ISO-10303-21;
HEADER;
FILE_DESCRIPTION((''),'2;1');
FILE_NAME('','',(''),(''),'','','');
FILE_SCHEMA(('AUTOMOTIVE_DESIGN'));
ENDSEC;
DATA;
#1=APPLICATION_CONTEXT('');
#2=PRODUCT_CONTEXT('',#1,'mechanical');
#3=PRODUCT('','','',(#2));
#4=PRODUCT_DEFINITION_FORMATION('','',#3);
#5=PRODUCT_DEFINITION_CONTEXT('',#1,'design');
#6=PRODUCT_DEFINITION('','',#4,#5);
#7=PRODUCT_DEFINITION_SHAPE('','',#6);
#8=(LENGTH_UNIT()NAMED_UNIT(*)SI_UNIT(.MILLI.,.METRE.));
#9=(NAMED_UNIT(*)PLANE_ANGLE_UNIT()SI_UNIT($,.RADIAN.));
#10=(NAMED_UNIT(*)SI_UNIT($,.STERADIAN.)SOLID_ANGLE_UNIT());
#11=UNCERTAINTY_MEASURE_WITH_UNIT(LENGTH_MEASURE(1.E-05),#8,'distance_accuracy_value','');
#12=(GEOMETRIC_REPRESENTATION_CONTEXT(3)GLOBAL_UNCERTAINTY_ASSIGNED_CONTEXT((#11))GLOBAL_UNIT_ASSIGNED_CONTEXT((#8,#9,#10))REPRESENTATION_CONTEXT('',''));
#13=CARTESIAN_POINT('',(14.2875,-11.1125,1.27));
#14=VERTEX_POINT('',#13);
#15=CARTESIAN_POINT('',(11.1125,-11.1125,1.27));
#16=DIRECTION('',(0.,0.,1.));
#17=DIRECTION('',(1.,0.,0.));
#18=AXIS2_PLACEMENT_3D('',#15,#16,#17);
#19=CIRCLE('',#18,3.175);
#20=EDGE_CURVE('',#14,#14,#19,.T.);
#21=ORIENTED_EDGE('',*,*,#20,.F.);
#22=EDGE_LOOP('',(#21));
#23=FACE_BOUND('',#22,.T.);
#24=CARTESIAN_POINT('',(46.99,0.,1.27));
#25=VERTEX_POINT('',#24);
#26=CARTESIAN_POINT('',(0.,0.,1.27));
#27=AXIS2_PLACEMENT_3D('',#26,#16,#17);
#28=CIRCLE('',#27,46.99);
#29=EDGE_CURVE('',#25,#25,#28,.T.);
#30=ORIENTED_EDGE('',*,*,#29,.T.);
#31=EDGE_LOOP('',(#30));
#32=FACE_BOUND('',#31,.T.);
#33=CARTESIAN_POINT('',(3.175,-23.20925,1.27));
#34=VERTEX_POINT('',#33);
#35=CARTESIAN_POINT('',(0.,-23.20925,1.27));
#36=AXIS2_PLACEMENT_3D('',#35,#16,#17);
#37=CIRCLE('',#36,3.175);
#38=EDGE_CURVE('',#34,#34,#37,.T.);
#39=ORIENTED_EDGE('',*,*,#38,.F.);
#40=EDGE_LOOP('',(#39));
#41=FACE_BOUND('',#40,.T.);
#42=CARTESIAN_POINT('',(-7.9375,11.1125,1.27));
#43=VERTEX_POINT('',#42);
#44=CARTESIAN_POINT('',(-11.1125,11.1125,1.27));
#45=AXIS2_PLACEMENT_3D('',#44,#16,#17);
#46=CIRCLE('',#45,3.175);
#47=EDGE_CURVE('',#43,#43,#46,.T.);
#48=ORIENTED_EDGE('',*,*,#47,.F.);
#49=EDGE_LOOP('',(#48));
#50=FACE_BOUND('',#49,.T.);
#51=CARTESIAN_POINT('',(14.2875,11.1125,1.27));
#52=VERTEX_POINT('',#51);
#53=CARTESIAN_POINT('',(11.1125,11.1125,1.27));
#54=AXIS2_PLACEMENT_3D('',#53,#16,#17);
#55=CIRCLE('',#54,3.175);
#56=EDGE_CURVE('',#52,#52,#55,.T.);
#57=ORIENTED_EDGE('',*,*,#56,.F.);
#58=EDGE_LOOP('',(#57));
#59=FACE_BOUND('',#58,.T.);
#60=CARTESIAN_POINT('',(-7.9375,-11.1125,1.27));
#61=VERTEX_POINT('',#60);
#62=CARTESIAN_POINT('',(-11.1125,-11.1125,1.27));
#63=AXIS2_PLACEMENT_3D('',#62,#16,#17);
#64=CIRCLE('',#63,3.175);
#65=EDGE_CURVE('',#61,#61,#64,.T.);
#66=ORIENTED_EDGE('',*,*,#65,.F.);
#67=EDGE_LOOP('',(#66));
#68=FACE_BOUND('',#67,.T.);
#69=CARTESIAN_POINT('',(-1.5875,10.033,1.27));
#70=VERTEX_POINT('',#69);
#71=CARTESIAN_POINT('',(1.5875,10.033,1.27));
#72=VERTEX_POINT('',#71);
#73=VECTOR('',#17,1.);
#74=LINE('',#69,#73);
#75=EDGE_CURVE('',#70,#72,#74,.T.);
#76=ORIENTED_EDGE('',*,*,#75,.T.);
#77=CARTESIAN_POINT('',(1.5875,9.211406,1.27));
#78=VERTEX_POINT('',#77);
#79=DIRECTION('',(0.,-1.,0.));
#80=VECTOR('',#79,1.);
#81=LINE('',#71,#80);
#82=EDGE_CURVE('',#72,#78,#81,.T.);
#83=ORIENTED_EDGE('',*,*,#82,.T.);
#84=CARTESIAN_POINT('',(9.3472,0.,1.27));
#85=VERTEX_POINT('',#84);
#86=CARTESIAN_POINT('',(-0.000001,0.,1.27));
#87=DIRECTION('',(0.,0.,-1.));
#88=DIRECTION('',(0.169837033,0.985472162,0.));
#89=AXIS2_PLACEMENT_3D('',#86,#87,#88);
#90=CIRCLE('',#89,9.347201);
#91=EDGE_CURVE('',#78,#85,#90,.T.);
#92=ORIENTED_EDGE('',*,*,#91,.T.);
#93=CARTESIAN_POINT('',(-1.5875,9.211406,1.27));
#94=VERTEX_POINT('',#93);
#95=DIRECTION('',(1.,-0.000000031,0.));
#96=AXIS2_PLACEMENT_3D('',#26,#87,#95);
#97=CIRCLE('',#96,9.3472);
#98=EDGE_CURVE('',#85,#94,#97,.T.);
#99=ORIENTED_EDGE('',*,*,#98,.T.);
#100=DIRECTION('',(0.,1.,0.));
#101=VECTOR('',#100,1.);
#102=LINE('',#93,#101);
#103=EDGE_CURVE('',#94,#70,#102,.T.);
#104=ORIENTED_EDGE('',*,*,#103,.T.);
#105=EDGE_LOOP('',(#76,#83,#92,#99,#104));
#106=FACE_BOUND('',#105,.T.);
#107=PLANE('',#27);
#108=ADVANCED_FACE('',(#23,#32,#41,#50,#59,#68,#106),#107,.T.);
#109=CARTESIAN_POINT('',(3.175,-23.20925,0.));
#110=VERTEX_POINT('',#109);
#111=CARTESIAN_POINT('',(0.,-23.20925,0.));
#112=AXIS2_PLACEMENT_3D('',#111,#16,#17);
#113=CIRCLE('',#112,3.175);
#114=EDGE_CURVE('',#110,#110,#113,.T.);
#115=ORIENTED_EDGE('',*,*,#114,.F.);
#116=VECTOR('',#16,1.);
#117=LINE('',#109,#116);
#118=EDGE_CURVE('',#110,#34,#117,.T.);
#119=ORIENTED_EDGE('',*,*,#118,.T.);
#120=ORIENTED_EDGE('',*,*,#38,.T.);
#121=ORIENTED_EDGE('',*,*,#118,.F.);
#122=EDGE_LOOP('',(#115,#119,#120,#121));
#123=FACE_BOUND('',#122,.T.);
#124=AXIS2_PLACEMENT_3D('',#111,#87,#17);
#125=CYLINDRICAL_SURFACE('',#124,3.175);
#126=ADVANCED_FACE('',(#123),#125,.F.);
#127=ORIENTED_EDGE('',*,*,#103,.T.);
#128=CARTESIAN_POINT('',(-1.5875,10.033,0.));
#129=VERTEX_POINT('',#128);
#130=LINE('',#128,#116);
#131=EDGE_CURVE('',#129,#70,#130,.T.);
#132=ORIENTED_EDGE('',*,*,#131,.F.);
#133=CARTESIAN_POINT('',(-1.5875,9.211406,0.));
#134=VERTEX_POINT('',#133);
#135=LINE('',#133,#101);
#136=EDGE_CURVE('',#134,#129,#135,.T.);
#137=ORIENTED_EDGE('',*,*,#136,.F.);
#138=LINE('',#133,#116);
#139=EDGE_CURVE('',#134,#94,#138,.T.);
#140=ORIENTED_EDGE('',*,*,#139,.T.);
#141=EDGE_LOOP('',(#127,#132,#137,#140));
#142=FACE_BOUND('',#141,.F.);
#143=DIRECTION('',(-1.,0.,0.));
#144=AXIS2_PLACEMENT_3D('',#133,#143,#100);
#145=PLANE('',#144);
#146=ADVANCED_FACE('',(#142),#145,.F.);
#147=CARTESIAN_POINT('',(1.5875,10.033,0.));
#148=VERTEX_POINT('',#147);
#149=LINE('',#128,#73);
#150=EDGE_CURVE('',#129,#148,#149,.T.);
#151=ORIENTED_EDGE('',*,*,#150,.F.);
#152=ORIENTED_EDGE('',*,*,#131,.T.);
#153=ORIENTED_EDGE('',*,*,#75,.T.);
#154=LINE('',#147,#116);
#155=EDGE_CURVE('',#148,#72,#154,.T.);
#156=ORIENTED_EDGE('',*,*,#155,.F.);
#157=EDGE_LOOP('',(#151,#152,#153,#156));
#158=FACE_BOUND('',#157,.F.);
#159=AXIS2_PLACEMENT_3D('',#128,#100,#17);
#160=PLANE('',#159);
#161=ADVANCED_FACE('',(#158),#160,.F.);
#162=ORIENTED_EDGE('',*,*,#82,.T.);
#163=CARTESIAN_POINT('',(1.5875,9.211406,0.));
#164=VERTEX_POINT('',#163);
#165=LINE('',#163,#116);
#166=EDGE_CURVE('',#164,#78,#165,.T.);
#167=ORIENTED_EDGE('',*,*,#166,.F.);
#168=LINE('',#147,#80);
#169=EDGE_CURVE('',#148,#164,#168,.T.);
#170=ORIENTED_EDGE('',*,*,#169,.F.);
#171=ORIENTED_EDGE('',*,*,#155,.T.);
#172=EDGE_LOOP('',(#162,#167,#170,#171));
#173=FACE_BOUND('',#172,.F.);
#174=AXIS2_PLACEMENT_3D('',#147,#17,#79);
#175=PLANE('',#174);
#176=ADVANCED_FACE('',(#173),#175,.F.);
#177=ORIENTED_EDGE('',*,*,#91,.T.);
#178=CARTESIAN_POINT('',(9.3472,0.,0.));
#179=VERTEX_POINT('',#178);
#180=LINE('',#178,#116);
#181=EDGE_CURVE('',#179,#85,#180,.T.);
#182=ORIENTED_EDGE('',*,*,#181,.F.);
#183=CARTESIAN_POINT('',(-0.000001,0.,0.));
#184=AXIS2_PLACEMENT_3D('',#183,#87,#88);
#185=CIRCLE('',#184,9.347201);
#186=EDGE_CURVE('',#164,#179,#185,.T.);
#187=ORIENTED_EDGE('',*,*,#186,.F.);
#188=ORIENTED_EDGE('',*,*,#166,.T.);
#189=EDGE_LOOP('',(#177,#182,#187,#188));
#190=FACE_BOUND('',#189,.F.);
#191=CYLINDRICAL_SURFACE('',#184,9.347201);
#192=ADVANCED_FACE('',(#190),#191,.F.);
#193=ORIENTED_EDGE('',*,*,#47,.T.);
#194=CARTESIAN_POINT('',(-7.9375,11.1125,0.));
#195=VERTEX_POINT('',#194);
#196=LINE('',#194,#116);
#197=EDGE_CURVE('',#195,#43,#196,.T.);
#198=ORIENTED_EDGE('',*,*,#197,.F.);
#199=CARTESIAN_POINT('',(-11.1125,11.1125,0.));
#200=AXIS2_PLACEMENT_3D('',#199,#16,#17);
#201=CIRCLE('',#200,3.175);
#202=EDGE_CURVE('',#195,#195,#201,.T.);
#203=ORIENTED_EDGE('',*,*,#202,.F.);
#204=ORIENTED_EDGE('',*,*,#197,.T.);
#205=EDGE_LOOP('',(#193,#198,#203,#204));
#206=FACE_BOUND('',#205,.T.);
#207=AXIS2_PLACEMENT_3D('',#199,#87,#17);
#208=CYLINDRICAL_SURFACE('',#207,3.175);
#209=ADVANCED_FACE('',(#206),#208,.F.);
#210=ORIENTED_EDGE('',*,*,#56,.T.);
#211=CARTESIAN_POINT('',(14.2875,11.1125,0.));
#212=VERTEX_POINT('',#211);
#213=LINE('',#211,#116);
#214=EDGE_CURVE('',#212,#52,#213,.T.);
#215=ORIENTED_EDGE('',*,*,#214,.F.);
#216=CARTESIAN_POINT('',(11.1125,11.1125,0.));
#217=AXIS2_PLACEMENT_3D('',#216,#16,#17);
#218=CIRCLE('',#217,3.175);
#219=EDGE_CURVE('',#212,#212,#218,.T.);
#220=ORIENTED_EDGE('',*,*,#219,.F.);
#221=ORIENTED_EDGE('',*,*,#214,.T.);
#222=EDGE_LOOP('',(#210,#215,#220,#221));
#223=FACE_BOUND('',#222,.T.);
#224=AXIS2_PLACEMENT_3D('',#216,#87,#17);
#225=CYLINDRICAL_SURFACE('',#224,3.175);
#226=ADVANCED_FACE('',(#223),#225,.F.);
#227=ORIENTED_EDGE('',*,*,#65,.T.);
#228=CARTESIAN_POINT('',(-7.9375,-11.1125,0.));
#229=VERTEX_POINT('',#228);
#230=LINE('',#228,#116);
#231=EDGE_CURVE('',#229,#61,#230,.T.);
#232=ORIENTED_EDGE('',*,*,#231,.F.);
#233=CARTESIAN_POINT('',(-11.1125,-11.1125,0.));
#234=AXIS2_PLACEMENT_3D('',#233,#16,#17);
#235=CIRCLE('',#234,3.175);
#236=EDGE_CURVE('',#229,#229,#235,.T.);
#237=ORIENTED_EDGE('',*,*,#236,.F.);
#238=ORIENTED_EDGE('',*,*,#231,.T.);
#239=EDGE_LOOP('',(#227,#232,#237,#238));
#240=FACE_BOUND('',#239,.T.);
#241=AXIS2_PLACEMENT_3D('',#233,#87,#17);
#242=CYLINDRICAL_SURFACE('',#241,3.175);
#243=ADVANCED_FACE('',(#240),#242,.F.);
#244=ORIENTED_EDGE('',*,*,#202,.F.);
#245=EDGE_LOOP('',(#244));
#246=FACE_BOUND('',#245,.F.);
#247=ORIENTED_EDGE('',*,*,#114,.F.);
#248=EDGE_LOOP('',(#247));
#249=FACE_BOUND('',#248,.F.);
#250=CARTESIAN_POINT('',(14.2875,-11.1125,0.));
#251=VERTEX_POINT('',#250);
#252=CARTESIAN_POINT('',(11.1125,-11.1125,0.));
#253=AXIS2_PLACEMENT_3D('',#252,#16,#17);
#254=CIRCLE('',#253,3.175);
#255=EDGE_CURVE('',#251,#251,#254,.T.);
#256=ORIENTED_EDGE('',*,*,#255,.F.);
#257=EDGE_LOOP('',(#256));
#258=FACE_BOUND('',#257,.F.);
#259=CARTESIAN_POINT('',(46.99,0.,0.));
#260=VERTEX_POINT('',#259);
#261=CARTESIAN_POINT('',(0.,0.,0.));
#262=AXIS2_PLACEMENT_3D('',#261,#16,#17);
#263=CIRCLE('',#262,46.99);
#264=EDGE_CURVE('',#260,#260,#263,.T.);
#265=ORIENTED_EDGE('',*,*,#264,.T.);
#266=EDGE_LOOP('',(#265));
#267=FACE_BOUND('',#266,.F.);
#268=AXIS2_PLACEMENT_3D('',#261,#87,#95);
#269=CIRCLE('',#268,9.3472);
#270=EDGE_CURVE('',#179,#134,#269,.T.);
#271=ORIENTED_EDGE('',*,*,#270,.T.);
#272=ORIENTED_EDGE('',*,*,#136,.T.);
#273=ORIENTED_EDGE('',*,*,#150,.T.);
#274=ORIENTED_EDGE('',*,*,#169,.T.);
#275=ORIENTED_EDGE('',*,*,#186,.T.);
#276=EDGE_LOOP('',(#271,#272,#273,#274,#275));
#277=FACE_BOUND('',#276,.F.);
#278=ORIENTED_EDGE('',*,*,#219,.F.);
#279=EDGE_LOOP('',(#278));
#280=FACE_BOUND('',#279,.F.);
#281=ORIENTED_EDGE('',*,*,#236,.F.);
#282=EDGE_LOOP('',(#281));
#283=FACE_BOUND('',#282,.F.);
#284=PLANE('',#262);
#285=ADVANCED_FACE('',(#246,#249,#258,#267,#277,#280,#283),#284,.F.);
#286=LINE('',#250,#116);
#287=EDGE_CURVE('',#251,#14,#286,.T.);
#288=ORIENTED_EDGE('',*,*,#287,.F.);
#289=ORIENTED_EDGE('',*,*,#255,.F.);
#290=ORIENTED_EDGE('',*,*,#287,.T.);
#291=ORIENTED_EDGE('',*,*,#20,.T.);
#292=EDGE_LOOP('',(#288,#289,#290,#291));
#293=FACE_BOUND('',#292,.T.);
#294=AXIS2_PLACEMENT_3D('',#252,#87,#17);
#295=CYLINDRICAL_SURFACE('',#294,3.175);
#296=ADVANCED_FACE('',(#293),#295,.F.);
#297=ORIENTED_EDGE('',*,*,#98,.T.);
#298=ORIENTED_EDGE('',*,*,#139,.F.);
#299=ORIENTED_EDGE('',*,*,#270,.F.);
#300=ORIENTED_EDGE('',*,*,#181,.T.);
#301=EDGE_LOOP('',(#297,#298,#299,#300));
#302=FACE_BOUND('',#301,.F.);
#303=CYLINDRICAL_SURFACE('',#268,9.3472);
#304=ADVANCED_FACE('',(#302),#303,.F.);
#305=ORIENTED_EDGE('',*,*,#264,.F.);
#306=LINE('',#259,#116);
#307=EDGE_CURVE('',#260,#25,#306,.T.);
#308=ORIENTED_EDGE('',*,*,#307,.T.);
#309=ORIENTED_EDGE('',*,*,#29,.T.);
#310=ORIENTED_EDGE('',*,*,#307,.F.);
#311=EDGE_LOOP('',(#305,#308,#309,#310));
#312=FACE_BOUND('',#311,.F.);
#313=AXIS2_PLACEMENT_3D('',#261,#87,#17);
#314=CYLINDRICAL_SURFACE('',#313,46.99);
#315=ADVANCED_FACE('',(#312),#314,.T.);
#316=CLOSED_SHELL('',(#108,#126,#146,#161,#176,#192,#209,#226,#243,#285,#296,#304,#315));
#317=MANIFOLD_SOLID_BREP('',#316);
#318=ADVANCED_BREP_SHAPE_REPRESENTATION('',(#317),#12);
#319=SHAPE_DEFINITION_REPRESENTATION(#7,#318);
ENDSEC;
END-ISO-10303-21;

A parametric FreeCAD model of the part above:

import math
import FreeCAD as App
import Part
import Sketcher

V = App.Vector
Q = App.Units.Quantity

doc = App.newDocument("Part")
body = doc.addObject("PartDesign::Body", "Body")

sketch1 = body.newObject("Sketcher::SketchObject", "Sketch")
sketch1.AttachmentSupport = (doc.getObject("XY_Plane"), [""])
sketch1.MapMode = "FlatFace"
sketch1.addGeometry(Part.Circle(V(0, 0, 0), V(0, 0, 1), 46.99), False)
sketch1.addGeometry(Part.Circle(V(-11.1125, -11.1125, 0), V(0, 0, 1), 3.175), False)
sketch1.addGeometry(Part.Circle(V(0, -23.20925, 0), V(0, 0, 1), 3.175), False)
sketch1.addGeometry(Part.Circle(V(11.1125, -11.1125, 0), V(0, 0, 1), 3.175), False)
sketch1.addGeometry(Part.LineSegment(V(1.5875, 10.033, 0), V(1.5875, 9.211406, 0)), False)
sketch1.addGeometry(Part.ArcOfCircle(Part.Circle(V(-0.000001, 0, 0), V(0, 0, 1), 9.347201), math.radians(0.000002), math.radians(80.221656)), False)
sketch1.addGeometry(Part.ArcOfCircle(Part.Circle(V(0, 0, 0), V(0, 0, 1), 9.3472), math.radians(99.778338), math.radians(359.999998)), False)
sketch1.addGeometry(Part.LineSegment(V(-1.5875, 9.211406, 0), V(-1.5875, 10.033, 0)), False)
sketch1.addGeometry(Part.LineSegment(V(-1.5875, 10.033, 0), V(1.5875, 10.033, 0)), False)
sketch1.addGeometry(Part.Circle(V(-11.1125, 11.1125, 0), V(0, 0, 1), 3.175), False)
sketch1.addGeometry(Part.Circle(V(11.1125, 11.1125, 0), V(0, 0, 1), 3.175), False)
sketch1.addConstraint(Sketcher.Constraint("Coincident", 4, 2, 5, 2))
sketch1.addConstraint(Sketcher.Constraint("Tangent", 5, 1, 6, 2))
sketch1.addConstraint(Sketcher.Constraint("Coincident", 6, 1, 7, 1))
sketch1.addConstraint(Sketcher.Constraint("Coincident", 7, 2, 8, 1))
sketch1.addConstraint(Sketcher.Constraint("Coincident", 8, 2, 4, 1))
sketch1.addConstraint(Sketcher.Constraint("Vertical", 4))
sketch1.addConstraint(Sketcher.Constraint("Vertical", 7))
sketch1.addConstraint(Sketcher.Constraint("Horizontal", 8))
sketch1.addConstraint(Sketcher.Constraint("Coincident", 0, 3, -1, 1))
sketch1.addConstraint(Sketcher.Constraint("Coincident", 5, 3, -1, 1))
sketch1.addConstraint(Sketcher.Constraint("Equal", 1, 2))
sketch1.addConstraint(Sketcher.Constraint("Equal", 2, 3))
sketch1.addConstraint(Sketcher.Constraint("Equal", 5, 6))
sketch1.addConstraint(Sketcher.Constraint("Equal", 3, 9))
sketch1.addConstraint(Sketcher.Constraint("Equal", 9, 10))
sketch1.addConstraint(Sketcher.Constraint("Symmetric", 3, 3, 9, 3, -1, 1))
sketch1.addConstraint(Sketcher.Constraint("Symmetric", 1, 3, 10, 3, -1, 1))
sketch1.addConstraint(Sketcher.Constraint("Symmetric", 1, 3, 3, 3, -2))
sketch1.addConstraint(Sketcher.Constraint("PointOnObject", 2, 3, -2))
sketch1.addConstraint(Sketcher.Constraint("PointOnObject", 5, 1, -1))
sketch1.addConstraint(Sketcher.Constraint("Horizontal", 4, 2, 6, 1))
sketch1.addConstraint(Sketcher.Constraint("Diameter", 0, Q("3.7 in")))
sketch1.addConstraint(Sketcher.Constraint("Diameter", 1, Q("0.25 in")))
sketch1.addConstraint(Sketcher.Constraint("Radius", 5, Q("0.368 in")))
sketch1.addConstraint(Sketcher.Constraint("DistanceX", 9, 3, 4, 2, Q("0.5 in")))
sketch1.addConstraint(Sketcher.Constraint("DistanceX", 8, 1, 8, 2, Q("0.125 in")))
sketch1.addConstraint(Sketcher.Constraint("DistanceY", 1, 3, -1, 1, Q("0.4375 in")))
sketch1.addConstraint(Sketcher.Constraint("DistanceY", -1, 1, 7, 2, Q("0.395 in")))
sketch1.addConstraint(Sketcher.Constraint("DistanceY", 2, 3, -1, 1, Q("23.20925 mm")))
pad1 = body.newObject("PartDesign::Pad", "Pad")
pad1.Profile = sketch1
pad1.Length = Q("0.05 in")

doc.recompute()
